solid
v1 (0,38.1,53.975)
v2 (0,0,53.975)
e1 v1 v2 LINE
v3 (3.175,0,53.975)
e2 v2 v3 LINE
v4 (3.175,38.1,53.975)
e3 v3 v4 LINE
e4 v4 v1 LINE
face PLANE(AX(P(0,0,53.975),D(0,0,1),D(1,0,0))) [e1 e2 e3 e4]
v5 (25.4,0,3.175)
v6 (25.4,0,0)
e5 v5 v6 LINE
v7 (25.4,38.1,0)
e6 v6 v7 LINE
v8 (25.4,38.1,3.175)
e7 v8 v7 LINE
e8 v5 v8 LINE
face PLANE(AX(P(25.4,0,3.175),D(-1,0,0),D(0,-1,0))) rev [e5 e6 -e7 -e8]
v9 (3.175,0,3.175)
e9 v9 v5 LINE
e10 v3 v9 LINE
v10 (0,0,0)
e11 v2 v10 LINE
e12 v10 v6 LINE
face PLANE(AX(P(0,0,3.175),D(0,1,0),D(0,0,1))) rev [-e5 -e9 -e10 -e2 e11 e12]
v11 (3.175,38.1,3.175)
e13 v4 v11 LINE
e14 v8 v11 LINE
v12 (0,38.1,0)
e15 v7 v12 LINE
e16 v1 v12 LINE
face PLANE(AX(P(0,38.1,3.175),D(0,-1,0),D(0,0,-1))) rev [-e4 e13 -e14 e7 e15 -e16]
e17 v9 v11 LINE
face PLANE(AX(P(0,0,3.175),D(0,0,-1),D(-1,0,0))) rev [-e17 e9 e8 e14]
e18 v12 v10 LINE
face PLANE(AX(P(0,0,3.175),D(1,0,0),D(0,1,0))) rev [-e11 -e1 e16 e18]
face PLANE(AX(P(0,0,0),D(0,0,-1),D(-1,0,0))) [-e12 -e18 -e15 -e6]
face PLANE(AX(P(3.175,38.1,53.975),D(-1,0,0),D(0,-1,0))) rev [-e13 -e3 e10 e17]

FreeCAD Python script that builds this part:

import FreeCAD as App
import Part
import Sketcher

V = App.Vector
Q = App.Units.Quantity

doc = App.newDocument("Part")
body = doc.addObject("PartDesign::Body", "Body")

# Sketch on XY plane
sketch1 = body.newObject("Sketcher::SketchObject", "Sketch")
sketch1.AttachmentSupport = (doc.getObject("XY_Plane"), [""])
sketch1.MapMode = "FlatFace"
sketch1.addGeometry([
    Part.LineSegment(V(0, 38.1, 0), V(0, 0, 0)),
    Part.LineSegment(V(0, 0, 0), V(25.4, 0, 0)),
    Part.LineSegment(V(25.4, 0, 0), V(25.4, 38.1, 0)),
    Part.LineSegment(V(25.4, 38.1, 0), V(0, 38.1, 0)),
], False)
sketch1.addConstraint([
    Sketcher.Constraint("Coincident", 0, 2, 1, 1),
    Sketcher.Constraint("Coincident", 1, 2, 2, 1),
    Sketcher.Constraint("Coincident", 2, 2, 3, 1),
    Sketcher.Constraint("Coincident", 3, 2, 0, 1),
    Sketcher.Constraint("Vertical", 0),
    Sketcher.Constraint("Horizontal", 1),
    Sketcher.Constraint("Vertical", 2),
    Sketcher.Constraint("Horizontal", 3),
    Sketcher.Constraint("Coincident", 0, 2, -1, 1),
    Sketcher.Constraint("DistanceX", 1, 1, 1, 2, Q("1 in")),
    Sketcher.Constraint("DistanceY", 0, 2, 0, 1, Q("1.5 in")),
])
pad1 = body.newObject("PartDesign::Pad", "Pad")
pad1.Profile = sketch1
pad1.Length = Q("0.125 in")

# Sketch on XY plane
sketch2 = body.newObject("Sketcher::SketchObject", "Sketch001")
sketch2.AttachmentSupport = (doc.getObject("XY_Plane"), [""])
sketch2.MapMode = "FlatFace"
sketch2.AttachmentOffset = App.Placement(V(0, 0, 0.125 * 25.4), App.Rotation())
sketch2.addGeometry([
    Part.LineSegment(V(0, 38.1, 0), V(0, 0, 0)),
    Part.LineSegment(V(0, 0, 0), V(3.175, 0, 0)),
    Part.LineSegment(V(3.175, 0, 0), V(3.175, 38.1, 0)),
    Part.LineSegment(V(3.175, 38.1, 0), V(0, 38.1, 0)),
], False)
sketch2.addConstraint([
    Sketcher.Constraint("Coincident", 0, 2, 1, 1),
    Sketcher.Constraint("Coincident", 1, 2, 2, 1),
    Sketcher.Constraint("Coincident", 2, 2, 3, 1),
    Sketcher.Constraint("Coincident", 3, 2, 0, 1),
    Sketcher.Constraint("Vertical", 0),
    Sketcher.Constraint("Horizontal", 1),
    Sketcher.Constraint("Vertical", 2),
    Sketcher.Constraint("Horizontal", 3),
    Sketcher.Constraint("Coincident", 0, 2, -1, 1),
    Sketcher.Constraint("DistanceY", 0, 2, 0, 1, Q("1.5 in")),
    Sketcher.Constraint("DistanceX", 1, 1, 1, 2, Q("0.125 in")),
])
pad2 = body.newObject("PartDesign::Pad", "Pad001")
pad2.Profile = sketch2
pad2.Length = Q("2 in")

doc.recompute()
